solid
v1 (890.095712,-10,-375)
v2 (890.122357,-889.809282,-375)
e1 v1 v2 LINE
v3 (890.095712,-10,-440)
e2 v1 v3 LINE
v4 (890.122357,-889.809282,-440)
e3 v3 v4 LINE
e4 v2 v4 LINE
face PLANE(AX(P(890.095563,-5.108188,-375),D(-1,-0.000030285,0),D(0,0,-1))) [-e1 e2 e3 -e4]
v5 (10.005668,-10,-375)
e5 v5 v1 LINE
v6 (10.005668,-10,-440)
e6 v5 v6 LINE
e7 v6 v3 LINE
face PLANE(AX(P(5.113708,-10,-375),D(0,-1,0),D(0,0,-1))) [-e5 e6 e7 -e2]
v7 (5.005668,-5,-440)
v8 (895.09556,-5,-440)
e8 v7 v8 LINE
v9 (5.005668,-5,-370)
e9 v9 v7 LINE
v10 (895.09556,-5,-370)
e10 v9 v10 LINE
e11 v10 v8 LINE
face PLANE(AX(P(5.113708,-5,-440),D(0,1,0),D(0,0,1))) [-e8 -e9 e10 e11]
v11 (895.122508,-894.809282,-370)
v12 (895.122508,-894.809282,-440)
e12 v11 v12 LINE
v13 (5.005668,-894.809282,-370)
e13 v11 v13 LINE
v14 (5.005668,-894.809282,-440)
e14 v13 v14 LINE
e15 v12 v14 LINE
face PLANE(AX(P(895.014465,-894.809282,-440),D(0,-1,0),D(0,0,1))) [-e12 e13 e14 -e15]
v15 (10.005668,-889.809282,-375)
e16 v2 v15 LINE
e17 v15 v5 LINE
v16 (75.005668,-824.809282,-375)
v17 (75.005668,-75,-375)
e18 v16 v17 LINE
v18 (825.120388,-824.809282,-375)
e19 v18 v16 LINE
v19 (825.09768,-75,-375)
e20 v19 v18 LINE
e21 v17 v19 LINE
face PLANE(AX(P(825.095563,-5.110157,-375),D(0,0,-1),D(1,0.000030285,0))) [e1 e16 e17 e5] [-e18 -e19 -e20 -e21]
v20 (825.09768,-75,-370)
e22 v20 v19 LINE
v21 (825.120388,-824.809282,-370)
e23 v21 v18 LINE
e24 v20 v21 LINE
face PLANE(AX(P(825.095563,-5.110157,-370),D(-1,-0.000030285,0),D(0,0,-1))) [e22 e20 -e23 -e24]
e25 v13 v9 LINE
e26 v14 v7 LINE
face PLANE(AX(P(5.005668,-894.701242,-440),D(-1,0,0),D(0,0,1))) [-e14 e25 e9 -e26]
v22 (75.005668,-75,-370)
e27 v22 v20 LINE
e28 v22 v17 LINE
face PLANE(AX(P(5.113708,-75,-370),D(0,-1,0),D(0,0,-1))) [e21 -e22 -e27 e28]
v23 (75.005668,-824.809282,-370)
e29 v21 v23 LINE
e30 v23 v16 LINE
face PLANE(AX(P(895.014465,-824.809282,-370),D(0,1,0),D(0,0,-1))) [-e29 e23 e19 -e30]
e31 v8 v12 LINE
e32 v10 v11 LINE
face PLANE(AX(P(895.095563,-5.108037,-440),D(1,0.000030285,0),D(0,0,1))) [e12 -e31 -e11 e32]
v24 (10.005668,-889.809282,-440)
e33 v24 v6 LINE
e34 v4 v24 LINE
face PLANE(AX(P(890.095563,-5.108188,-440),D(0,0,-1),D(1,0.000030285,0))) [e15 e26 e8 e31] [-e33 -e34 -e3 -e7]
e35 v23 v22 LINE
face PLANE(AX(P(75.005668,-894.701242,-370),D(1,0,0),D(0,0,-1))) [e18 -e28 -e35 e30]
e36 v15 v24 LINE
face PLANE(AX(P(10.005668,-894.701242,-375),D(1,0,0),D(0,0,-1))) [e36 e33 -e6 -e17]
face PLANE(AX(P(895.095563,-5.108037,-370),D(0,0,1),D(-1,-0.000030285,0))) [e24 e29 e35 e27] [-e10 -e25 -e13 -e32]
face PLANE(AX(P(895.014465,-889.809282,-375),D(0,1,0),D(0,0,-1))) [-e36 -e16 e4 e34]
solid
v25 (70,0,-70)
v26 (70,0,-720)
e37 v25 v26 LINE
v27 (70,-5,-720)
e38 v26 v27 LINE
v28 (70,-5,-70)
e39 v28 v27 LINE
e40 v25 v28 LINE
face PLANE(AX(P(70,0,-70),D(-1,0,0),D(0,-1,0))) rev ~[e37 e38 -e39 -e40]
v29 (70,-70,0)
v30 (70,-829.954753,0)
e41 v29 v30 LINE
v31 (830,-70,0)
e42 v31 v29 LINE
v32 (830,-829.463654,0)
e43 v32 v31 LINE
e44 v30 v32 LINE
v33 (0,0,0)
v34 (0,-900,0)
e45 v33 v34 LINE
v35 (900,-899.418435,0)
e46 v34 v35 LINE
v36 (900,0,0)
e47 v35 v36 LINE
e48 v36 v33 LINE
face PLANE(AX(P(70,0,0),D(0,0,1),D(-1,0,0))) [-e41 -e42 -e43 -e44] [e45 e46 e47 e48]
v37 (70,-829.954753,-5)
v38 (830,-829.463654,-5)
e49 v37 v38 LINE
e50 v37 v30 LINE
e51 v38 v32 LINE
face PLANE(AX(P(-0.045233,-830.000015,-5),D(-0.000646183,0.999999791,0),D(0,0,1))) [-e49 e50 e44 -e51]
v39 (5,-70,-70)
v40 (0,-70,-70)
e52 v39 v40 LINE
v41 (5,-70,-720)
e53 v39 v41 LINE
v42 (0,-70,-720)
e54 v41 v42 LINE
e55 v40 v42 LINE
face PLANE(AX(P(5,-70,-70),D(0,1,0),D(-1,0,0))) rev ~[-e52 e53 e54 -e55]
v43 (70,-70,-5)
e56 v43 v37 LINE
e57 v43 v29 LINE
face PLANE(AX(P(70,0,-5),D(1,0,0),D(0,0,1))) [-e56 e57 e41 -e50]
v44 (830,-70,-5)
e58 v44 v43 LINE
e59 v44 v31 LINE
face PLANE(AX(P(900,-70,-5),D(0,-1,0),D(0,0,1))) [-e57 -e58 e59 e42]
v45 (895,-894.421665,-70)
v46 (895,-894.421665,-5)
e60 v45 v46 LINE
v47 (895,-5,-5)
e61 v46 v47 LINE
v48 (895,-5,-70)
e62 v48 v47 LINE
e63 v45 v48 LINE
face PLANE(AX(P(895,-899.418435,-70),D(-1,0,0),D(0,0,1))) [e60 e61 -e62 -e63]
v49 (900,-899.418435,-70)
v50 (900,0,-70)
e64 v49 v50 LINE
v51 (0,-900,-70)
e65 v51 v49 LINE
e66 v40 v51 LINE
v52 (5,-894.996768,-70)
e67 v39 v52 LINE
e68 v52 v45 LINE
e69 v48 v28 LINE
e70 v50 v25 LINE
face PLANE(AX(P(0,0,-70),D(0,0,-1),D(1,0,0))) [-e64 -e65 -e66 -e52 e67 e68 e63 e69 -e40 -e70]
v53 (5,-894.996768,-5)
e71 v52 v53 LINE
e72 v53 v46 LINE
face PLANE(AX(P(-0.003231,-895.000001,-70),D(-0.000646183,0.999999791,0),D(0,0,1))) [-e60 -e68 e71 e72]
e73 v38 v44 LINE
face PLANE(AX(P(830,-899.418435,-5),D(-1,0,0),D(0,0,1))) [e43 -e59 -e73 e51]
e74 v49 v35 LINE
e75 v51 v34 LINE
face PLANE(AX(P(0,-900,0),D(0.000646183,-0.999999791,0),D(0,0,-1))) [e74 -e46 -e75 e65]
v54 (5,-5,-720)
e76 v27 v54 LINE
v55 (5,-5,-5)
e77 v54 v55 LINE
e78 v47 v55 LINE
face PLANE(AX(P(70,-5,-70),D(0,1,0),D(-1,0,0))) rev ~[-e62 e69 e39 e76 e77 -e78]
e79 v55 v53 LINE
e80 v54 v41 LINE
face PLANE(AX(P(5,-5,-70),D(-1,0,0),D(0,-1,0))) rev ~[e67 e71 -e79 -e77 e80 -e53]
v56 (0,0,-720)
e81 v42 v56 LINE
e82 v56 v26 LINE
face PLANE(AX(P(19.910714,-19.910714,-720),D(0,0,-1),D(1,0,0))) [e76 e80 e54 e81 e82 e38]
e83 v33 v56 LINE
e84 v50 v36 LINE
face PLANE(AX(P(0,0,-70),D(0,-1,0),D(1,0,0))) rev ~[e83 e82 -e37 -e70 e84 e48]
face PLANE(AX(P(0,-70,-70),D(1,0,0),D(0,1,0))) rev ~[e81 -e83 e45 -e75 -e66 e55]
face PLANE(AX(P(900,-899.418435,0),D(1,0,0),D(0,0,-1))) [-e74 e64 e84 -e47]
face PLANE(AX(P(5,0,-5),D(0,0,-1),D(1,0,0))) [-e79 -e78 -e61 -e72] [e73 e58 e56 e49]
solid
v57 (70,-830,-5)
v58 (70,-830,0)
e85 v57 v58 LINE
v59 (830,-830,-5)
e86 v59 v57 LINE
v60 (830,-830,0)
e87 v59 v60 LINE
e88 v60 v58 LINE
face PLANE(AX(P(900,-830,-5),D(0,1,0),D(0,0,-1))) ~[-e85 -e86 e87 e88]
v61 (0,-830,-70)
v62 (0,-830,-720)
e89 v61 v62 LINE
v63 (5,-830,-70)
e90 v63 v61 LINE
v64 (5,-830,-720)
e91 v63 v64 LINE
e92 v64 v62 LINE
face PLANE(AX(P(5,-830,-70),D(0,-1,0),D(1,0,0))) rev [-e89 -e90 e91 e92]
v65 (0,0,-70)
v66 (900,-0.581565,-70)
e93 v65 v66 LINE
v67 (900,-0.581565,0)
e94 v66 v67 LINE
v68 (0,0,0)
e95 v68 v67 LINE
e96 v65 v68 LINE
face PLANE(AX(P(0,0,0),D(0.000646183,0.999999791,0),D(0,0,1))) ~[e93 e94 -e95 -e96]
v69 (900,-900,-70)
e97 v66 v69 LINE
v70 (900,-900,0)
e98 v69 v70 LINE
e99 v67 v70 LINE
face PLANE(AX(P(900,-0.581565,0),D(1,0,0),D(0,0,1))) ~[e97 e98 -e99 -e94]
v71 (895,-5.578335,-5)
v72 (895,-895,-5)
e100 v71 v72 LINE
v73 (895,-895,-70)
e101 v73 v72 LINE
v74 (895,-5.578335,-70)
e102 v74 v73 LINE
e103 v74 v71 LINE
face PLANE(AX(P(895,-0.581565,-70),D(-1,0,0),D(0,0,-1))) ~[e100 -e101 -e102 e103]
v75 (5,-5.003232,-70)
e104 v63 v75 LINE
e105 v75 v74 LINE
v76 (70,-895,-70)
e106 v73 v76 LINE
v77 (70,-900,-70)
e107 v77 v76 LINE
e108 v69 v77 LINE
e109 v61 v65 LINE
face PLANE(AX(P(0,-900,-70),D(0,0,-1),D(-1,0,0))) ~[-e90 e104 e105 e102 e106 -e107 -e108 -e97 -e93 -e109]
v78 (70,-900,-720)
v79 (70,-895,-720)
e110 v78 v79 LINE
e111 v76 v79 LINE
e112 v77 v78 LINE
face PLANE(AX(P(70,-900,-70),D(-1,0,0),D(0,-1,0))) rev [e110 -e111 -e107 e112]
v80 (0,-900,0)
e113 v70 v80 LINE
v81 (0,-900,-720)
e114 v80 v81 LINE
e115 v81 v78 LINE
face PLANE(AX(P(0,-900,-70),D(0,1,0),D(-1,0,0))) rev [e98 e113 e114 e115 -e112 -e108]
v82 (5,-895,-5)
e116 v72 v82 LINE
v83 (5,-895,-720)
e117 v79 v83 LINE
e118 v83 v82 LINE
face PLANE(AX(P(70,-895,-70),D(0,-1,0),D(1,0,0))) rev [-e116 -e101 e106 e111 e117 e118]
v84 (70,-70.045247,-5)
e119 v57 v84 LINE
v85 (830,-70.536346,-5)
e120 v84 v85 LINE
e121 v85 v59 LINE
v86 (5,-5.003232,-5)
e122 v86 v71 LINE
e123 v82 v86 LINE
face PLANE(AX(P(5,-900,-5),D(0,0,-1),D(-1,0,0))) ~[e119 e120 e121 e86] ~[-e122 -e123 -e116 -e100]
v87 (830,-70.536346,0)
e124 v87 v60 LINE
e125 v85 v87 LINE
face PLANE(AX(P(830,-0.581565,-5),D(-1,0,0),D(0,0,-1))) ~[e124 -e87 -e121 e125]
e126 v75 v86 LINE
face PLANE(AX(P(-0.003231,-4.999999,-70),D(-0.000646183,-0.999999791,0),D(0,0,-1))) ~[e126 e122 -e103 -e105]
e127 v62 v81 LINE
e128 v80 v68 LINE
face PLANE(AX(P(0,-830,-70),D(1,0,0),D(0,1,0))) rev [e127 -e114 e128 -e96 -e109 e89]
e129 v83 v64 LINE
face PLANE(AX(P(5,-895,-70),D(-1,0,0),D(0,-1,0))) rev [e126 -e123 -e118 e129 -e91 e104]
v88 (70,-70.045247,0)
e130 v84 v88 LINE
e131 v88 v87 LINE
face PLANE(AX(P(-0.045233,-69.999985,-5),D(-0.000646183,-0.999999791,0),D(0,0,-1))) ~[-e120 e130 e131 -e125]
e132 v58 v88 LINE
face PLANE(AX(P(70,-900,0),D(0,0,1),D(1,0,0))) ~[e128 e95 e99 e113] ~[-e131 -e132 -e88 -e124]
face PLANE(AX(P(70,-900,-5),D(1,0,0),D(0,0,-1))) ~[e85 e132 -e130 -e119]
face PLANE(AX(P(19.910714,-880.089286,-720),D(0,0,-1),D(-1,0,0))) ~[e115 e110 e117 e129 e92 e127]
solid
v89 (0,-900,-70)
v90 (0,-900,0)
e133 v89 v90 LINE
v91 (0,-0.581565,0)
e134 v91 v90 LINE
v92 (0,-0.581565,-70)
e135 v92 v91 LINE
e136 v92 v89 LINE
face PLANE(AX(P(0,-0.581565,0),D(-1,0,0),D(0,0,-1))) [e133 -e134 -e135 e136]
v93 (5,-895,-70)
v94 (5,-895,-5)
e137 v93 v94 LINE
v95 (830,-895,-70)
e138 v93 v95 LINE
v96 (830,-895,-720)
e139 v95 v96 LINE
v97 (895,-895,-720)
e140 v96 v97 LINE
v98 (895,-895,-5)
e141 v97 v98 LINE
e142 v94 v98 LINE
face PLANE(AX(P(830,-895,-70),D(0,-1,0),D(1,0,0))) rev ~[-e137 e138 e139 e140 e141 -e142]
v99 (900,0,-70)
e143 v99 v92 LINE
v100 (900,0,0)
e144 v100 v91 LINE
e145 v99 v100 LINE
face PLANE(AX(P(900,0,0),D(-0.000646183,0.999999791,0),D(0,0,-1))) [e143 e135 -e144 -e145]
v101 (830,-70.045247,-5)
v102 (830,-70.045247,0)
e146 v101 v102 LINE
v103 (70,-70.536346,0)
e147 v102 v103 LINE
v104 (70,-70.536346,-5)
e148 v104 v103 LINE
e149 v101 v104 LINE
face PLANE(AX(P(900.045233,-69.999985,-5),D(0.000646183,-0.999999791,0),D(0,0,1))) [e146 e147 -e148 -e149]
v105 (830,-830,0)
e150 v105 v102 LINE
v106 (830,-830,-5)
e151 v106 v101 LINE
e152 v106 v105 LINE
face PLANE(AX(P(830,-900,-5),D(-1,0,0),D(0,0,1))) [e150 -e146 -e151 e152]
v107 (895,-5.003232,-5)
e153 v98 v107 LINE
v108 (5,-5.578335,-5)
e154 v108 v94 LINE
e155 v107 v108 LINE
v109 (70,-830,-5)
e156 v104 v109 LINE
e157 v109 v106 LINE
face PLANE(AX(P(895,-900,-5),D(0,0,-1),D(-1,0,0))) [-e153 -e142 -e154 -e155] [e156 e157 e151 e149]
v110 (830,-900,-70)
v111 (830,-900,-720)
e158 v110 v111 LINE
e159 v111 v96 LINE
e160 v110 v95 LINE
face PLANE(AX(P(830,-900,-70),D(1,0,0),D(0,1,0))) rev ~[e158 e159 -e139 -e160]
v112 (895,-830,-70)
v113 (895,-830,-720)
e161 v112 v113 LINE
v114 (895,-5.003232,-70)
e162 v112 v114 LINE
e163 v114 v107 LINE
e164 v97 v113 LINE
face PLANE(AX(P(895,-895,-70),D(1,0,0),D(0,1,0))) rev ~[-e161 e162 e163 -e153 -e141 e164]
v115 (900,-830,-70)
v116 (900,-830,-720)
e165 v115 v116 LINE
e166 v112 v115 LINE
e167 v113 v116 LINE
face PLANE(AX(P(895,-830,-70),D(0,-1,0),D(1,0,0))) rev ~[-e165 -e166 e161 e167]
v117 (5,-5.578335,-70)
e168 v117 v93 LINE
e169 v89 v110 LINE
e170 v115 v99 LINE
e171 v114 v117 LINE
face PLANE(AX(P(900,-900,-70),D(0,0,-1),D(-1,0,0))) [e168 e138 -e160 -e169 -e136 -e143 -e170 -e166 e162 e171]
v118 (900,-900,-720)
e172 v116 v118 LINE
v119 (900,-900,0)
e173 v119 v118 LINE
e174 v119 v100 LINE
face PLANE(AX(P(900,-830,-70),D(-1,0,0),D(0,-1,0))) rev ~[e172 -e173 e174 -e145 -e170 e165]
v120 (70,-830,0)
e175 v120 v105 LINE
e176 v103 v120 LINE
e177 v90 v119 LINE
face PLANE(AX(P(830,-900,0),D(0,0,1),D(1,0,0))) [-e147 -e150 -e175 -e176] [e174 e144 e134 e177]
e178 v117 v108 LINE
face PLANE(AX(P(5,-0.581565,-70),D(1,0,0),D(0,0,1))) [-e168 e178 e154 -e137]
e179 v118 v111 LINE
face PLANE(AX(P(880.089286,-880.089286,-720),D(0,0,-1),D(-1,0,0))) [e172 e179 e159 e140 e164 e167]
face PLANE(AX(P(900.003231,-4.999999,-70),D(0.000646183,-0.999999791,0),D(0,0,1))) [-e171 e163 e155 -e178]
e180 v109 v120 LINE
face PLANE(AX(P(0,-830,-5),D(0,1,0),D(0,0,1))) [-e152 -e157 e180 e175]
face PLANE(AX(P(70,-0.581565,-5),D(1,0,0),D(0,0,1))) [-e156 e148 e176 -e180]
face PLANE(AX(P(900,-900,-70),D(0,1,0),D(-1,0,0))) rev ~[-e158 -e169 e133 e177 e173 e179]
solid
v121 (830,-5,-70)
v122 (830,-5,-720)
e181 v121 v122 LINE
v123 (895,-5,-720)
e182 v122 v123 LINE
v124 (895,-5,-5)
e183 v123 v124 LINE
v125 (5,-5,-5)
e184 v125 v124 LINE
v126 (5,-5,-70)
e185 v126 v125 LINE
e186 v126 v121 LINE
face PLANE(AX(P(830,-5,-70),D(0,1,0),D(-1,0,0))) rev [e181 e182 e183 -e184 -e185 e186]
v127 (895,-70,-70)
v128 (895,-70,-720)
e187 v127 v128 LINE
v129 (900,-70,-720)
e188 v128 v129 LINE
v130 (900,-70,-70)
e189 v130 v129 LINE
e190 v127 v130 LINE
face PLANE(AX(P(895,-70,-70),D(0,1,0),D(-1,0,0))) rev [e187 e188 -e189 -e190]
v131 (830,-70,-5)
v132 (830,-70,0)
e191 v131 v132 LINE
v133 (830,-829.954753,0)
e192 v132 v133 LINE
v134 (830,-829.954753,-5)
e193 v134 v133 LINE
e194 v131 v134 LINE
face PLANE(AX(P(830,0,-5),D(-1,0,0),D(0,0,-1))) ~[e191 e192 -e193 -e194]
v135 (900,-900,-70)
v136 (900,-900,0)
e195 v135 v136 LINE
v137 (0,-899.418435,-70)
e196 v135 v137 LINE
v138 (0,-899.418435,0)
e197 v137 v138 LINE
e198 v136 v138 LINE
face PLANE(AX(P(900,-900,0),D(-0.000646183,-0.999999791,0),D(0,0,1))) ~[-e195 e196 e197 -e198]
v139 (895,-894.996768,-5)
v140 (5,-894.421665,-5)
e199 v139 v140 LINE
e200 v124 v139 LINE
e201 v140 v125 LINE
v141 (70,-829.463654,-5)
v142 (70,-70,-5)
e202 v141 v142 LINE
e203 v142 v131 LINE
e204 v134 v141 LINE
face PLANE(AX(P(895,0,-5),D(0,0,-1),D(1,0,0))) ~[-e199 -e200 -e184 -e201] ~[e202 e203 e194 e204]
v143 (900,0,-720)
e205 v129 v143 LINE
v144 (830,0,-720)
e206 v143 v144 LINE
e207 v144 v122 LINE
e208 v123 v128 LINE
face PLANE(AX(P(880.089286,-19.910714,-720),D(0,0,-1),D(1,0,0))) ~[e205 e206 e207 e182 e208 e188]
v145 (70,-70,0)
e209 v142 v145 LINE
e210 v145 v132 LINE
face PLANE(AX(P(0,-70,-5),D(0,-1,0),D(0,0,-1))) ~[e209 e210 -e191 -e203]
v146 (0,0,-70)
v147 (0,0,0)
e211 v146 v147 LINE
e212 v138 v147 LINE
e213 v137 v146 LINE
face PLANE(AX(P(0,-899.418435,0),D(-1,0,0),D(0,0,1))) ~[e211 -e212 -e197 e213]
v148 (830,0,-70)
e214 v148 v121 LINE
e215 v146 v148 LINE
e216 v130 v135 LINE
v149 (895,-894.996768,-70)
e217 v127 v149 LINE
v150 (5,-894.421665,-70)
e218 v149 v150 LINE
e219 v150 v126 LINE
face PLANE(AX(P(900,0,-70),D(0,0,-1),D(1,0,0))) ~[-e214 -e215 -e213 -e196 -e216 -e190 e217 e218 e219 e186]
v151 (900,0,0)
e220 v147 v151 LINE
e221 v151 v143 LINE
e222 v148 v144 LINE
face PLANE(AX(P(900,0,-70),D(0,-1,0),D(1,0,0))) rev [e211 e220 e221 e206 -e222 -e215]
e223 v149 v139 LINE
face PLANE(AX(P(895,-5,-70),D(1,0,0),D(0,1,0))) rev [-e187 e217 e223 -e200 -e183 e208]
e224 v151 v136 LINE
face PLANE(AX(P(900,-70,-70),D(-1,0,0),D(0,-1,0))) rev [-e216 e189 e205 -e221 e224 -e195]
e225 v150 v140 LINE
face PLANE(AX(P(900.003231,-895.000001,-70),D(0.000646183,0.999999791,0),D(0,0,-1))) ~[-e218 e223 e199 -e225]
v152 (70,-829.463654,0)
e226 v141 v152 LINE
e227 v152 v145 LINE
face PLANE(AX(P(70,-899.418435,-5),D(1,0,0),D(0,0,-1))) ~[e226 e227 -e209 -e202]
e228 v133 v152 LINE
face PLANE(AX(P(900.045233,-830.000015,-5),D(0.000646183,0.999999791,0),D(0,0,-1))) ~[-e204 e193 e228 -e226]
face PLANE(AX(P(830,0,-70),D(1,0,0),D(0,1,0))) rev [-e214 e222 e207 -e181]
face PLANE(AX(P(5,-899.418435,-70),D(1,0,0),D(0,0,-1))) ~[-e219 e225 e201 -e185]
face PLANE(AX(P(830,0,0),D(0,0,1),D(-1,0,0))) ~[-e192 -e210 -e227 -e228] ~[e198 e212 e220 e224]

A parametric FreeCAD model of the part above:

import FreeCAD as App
import Part
import Sketcher

V = App.Vector


def add_polygon(sketch, points):
    """Adds a closed chain of lines whose ends are joined by coincident constraints."""
    first, n = sketch.GeometryCount, len(points)
    for a, b in zip(points, points[1:] + points[:1]):
        sketch.addGeometry(Part.LineSegment(App.Vector(*a, 0), App.Vector(*b, 0)), False)
    for i in range(n):
        sketch.addConstraint(Sketcher.Constraint("Coincident", first + i, 2, first + (i + 1) % n, 1))

doc = App.newDocument("Part")
params = doc.addObject("Spreadsheet::Sheet", "Params")
for row, (alias, value) in enumerate([
    ("sketch1_width", "70 mm"),
    ("sketch1_width2", "5 mm"),
    ("sketch2_width", "900 mm"),
    ("sketch3_width", "70 mm"),
    ("sketch3_width2", "65 mm"),
    ("pad1_length", "650 mm"),
    ("sketch4_width", "70 mm"),
    ("sketch4_width2", "65 mm"),
], start=1):
    params.set(f"A{row}", alias)
    params.set(f"B{row}", "=" + value)
    params.setAlias(f"B{row}", alias)

body = doc.addObject("PartDesign::Body", "Body")

sketch1 = doc.addObject("Sketcher::SketchObject", "Sketch")
body.addObject(sketch1)
sketch1.AttachmentSupport = (doc.XZ_Plane, [""])
sketch1.MapMode = "FlatFace"
sketch1.AttachmentOffset = App.Placement(V(0, 0, 450), App.Rotation())
add_polygon(sketch1, [(70, 0), (0, 0), (0, -70), (5, -70), (5, -5), (70, -5)])
sketch1.addConstraint([
    Sketcher.Constraint("Horizontal", 0),
    Sketcher.Constraint("Vertical", 1),
    Sketcher.Constraint("Horizontal", 2),
    Sketcher.Constraint("Vertical", 3),
    Sketcher.Constraint("Horizontal", 4),
    Sketcher.Constraint("Vertical", 5),
    Sketcher.Constraint("Coincident", 0, 2, -1, 1),
    Sketcher.Constraint("Equal", 0, 1),
    Sketcher.Constraint("Equal", 4, 3),
    Sketcher.Constraint("DistanceX", 0, 2, 0, 1, 70.0),
    Sketcher.Constraint("DistanceX", 2, 1, 2, 2, 5.0),
])
sketch1.setExpression("Constraints[15]", "Params.sketch1_width")
sketch1.setExpression("Constraints[16]", "Params.sketch1_width2")

sketch2 = doc.addObject("Sketcher::SketchObject", "Sketch001")
body.addObject(sketch2)
sketch2.AttachmentSupport = (doc.XY_Plane, [""])
sketch2.MapMode = "FlatFace"
add_polygon(sketch2, [(0, 0), (0, -900), (900, -899), (900, 0)])
sketch2.addConstraint([
    Sketcher.Constraint("Vertical", 0),
    Sketcher.Constraint("Vertical", 2),
    Sketcher.Constraint("Horizontal", 3),
    Sketcher.Constraint("Coincident", 3, 2, -1, 1),
    Sketcher.Constraint("Equal", 3, 0),
    Sketcher.Constraint("DistanceX", 3, 2, 3, 1, 900.0),
    Sketcher.Constraint("DistanceY", 2, 1, 2, 2, 899.418435),
])
sketch2.setExpression("Constraints[9]", "Params.sketch2_width")
doc.recompute()

additivepipe = doc.addObject("PartDesign::AdditivePipe", "AdditivePipe")
body.addObject(additivepipe)
additivepipe.Profile = sketch1
additivepipe.Spine = (sketch2, ["Edge1", "Edge2", "Edge3", "Edge4"])
additivepipe.Transition = "Right corner"

sketch3 = doc.addObject("Sketcher::SketchObject", "Sketch002")
body.addObject(sketch3)
sketch3.AttachmentSupport = (doc.XY_Plane, [""])
sketch3.MapMode = "FlatFace"
sketch3.AttachmentOffset = App.Placement(V(0, 0, -70), App.Rotation())
add_polygon(sketch3, [(0, -70), (0, 0), (70, 0), (70, -5), (5, -5), (5, -70)])
sketch3.addConstraint([
    Sketcher.Constraint("Vertical", 0),
    Sketcher.Constraint("Horizontal", 1),
    Sketcher.Constraint("Vertical", 2),
    Sketcher.Constraint("Horizontal", 3),
    Sketcher.Constraint("Vertical", 4),
    Sketcher.Constraint("Horizontal", 5),
    Sketcher.Constraint("Coincident", 0, 2, -1, 1),
    Sketcher.Constraint("Equal", 1, 0),
    Sketcher.Constraint("Equal", 5, 2),
    Sketcher.Constraint("DistanceX", 1, 1, 1, 2, 70.0),
    Sketcher.Constraint("DistanceX", 3, 2, 3, 1, 65.0),
])
sketch3.setExpression("Constraints[15]", "Params.sketch3_width")
sketch3.setExpression("Constraints[16]", "Params.sketch3_width2")
pad1 = doc.addObject("PartDesign::Pad", "Pad")
body.addObject(pad1)
pad1.Profile = sketch3
pad1.setExpression("Length", "Params.pad1_length")
pad1.Reversed = True
body2 = doc.addObject("PartDesign::Body", "Body001")
doc.recompute()

mirroring = doc.addObject("Part::Mirroring", "Mirroring")
mirroring.Source = body
mirroring.Base = V(0, -450, 0)
mirroring.Normal = V(0, -1, 0)
body2.BaseFeature = mirroring
doc.recompute()
body3 = doc.addObject("PartDesign::Body", "Body002")
doc.recompute()

mirroring2 = doc.addObject("Part::Mirroring", "Mirroring001")
mirroring2.Source = body2
mirroring2.Base = V(450, 0, 0)
mirroring2.Normal = V(1, 0, 0)
body3.BaseFeature = mirroring2
doc.recompute()
body4 = doc.addObject("PartDesign::Body", "Body003")
doc.recompute()

mirroring3 = doc.addObject("Part::Mirroring", "Mirroring002")
mirroring3.Source = body
mirroring3.Base = V(450, 0, 0)
mirroring3.Normal = V(1, 0, 0)
body4.BaseFeature = mirroring3
doc.recompute()
body5 = doc.addObject("PartDesign::Body", "Body004")

sketch4 = doc.addObject("Sketcher::SketchObject", "Sketch003")
body5.addObject(sketch4)
sketch4.AttachmentSupport = (doc.getObject("YZ_Plane004"), [""])
sketch4.MapMode = "FlatFace"
sketch4.AttachmentOffset = App.Placement(V(0, 0, 450), App.Rotation())
add_polygon(sketch4, [(-5, -440), (-5, -370), (-75, -370), (-75, -375), (-10, -375), (-10, -440)])
sketch4.addConstraint([
    Sketcher.Constraint("Vertical", 0),
    Sketcher.Constraint("Horizontal", 1),
    Sketcher.Constraint("Vertical", 2),
    Sketcher.Constraint("Horizontal", 3),
    Sketcher.Constraint("Vertical", 4),
    Sketcher.Constraint("Horizontal", 5),
    Sketcher.Constraint("Equal", 1, 0),
    Sketcher.Constraint("Equal", 5, 2),
    Sketcher.Constraint("DistanceX", 1, 2, 1, 1, 70.0),
    Sketcher.Constraint("DistanceX", 3, 1, 3, 2, 65.0),
    Sketcher.Constraint("DistanceX", 0, 2, -1, 1, 5.0),
    Sketcher.Constraint("DistanceY", 0, 2, -1, 1, 370.0),
])
sketch4.setExpression("Constraints[14]", "Params.sketch4_width")
sketch4.setExpression("Constraints[15]", "Params.sketch4_width2")

sketch5 = doc.addObject("Sketcher::SketchObject", "Sketch004")
body5.addObject(sketch5)
sketch5.AttachmentSupport = (doc.getObject("XY_Plane004"), [""])
sketch5.MapMode = "FlatFace"
sketch5.AttachmentOffset = App.Placement(V(0, 0, -370), App.Rotation())
add_polygon(sketch5, [(895, -5), (895, -895), (5, -895), (5, -5)])
sketch5.addConstraint([
    Sketcher.Constraint("Horizontal", 1),
    Sketcher.Constraint("Vertical", 2),
    Sketcher.Constraint("Horizontal", 3),
    Sketcher.Constraint("DistanceX", 1, 2, 1, 1, 889.900757),
    Sketcher.Constraint("DistanceX", 3, 1, 3, 2, 889.873816),
    Sketcher.Constraint("DistanceY", 2, 1, 2, 2, 889.593203),
    Sketcher.Constraint("DistanceY", 2, 2, -1, 1, 5.10804),
    Sketcher.Constraint("DistanceX", -1, 1, 0, 2, 895.014465),
])
doc.recompute()

additivepipe2 = doc.addObject("PartDesign::AdditivePipe", "AdditivePipe001")
body5.addObject(additivepipe2)
additivepipe2.Profile = sketch4
additivepipe2.Spine = (sketch5, ["Edge1", "Edge2", "Edge3", "Edge4"])
additivepipe2.Transition = "Right corner"
mirroring.Visibility = False
mirroring2.Visibility = False
mirroring3.Visibility = False

doc.recompute()
